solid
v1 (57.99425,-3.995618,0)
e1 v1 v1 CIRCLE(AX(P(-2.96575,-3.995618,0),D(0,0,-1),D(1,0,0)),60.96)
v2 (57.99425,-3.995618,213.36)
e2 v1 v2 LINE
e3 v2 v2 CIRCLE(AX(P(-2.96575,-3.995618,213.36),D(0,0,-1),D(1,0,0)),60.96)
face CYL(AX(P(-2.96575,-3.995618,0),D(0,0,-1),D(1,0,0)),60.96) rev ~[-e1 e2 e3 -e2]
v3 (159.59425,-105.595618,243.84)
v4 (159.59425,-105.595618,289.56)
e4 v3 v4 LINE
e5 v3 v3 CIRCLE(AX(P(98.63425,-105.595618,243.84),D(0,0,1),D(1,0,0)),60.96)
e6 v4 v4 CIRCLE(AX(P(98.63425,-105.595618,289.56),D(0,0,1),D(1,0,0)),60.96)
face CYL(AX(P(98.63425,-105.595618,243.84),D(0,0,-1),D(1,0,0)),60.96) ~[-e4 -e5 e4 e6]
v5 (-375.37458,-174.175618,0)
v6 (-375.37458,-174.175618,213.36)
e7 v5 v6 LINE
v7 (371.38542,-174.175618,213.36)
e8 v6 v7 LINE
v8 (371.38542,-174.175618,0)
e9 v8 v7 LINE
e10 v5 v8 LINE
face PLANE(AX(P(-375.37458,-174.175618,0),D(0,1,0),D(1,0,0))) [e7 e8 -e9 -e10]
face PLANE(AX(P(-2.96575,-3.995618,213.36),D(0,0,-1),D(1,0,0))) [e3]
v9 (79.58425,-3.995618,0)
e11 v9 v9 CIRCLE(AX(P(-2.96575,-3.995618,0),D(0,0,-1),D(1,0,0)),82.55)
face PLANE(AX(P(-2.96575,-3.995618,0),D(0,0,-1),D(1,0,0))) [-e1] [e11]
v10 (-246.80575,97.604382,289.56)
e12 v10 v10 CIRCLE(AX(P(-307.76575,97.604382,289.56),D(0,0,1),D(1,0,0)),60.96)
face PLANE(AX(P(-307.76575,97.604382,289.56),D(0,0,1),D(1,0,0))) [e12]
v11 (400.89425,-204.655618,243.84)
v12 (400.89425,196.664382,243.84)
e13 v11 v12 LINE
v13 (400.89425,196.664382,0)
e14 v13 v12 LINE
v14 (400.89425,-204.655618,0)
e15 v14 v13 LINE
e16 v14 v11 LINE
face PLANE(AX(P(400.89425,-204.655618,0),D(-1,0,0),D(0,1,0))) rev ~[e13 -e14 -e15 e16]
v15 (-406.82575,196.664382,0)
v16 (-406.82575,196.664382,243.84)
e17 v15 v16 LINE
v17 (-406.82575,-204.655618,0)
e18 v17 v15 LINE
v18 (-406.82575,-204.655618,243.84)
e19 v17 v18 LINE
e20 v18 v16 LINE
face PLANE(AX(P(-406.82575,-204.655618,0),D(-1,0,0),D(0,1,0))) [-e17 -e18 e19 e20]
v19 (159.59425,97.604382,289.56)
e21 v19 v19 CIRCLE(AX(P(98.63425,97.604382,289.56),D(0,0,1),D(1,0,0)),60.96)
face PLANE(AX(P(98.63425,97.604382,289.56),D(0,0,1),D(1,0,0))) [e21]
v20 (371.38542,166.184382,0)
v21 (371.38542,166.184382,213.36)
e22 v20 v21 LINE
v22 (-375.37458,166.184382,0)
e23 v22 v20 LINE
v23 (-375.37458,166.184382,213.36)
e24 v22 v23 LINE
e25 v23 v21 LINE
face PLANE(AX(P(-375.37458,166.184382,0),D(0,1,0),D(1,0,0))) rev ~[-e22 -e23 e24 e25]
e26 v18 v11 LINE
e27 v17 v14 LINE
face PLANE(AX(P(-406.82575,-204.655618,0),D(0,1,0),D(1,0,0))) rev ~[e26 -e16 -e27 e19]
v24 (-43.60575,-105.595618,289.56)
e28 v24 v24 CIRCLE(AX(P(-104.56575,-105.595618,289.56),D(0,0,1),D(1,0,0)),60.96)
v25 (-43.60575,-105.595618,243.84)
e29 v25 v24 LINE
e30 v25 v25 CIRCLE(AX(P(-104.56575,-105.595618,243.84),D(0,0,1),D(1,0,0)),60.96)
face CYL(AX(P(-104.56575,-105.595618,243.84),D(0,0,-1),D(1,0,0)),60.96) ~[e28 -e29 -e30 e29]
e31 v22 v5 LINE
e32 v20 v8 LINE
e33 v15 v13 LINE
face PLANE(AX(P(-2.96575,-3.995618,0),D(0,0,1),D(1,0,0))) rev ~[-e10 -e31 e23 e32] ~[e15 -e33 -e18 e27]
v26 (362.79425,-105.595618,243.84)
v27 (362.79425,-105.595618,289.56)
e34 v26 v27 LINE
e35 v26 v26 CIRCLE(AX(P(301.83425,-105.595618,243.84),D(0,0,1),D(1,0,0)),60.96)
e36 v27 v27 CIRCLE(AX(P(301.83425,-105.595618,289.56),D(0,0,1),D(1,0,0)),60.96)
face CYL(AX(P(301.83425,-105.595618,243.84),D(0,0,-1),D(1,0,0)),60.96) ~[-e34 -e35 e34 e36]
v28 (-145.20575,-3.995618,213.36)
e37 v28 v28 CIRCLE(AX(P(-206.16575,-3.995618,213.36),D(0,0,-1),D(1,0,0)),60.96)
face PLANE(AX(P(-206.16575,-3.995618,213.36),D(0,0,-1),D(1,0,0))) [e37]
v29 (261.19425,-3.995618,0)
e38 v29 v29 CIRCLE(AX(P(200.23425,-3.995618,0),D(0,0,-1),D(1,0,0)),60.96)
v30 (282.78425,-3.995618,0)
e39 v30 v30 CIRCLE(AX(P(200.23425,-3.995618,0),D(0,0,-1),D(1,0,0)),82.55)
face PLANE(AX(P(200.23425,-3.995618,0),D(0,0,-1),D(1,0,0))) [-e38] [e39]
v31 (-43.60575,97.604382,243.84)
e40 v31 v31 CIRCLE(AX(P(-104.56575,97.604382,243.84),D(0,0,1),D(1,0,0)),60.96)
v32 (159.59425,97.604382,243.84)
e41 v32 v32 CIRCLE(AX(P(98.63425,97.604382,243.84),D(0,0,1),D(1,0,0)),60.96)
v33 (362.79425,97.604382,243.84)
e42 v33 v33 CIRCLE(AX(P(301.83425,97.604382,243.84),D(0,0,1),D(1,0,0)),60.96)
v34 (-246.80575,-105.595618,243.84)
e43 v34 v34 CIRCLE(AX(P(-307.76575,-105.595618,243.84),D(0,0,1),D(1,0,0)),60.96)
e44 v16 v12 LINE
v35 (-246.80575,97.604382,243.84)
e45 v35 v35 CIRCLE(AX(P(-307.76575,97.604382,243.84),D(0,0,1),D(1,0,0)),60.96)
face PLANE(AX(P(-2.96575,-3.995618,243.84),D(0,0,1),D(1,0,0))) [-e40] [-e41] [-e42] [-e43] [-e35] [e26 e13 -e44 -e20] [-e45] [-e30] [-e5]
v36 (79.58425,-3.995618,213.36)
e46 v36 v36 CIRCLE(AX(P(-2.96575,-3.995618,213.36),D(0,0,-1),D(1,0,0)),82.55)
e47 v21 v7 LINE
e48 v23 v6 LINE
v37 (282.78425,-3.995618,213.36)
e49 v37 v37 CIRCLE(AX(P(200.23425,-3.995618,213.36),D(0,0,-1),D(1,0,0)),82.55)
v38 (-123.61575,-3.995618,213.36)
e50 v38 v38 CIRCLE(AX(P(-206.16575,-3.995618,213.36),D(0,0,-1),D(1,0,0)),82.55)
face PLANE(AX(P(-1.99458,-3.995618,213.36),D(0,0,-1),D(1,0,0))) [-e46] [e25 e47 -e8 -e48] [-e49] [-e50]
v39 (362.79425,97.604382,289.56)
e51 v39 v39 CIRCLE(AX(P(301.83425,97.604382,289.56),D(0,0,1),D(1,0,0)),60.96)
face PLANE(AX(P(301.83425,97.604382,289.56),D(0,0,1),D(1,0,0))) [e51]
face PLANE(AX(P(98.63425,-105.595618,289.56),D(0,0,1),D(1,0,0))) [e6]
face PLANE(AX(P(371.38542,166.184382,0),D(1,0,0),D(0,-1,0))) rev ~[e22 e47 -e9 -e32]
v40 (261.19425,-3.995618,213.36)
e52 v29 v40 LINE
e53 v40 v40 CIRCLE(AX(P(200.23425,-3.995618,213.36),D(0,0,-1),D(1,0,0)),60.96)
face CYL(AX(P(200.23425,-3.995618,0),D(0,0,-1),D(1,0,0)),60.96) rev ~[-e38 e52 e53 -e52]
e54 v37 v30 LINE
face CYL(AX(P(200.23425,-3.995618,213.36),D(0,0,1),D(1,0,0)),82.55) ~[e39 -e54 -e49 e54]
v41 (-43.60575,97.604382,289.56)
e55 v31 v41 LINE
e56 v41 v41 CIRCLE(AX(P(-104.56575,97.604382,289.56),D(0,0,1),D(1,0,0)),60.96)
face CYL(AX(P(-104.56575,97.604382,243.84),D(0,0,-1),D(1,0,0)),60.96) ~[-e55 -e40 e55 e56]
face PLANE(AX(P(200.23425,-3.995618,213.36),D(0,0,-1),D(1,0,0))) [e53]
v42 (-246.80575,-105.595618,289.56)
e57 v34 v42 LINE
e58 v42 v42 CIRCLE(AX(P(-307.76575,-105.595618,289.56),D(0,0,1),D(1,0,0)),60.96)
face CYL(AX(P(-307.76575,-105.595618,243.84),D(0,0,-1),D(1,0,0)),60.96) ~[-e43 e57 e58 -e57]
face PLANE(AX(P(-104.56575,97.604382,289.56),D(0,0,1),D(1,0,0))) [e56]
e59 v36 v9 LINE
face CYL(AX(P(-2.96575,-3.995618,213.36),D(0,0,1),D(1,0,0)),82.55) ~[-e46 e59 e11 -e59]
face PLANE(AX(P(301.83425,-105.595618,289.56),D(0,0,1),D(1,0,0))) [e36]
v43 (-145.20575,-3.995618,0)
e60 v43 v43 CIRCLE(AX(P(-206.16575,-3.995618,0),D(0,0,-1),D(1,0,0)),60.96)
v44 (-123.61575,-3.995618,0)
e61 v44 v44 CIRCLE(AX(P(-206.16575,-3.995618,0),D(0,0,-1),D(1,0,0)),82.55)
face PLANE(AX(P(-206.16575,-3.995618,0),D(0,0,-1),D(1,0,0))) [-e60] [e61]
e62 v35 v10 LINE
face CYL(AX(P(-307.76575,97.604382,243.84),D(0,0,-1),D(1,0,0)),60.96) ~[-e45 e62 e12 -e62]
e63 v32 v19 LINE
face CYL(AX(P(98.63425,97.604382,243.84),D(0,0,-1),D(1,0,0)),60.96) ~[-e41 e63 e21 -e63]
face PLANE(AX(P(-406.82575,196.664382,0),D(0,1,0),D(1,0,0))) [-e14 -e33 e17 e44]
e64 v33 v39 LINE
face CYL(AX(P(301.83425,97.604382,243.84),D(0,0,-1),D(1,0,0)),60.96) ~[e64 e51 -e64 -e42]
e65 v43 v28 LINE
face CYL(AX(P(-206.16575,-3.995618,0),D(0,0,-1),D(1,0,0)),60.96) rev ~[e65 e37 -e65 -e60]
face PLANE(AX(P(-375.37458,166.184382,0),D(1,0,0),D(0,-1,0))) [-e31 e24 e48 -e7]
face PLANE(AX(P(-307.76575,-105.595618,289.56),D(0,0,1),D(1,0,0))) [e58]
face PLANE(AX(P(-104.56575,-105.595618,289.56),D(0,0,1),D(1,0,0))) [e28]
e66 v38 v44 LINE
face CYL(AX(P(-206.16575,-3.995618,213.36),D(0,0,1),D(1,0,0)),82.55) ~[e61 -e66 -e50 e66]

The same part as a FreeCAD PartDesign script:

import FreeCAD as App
import Part
import Sketcher
Q = App.Units.Quantity


def add_polygon(sketch, points):
    """Adds a closed chain of lines whose ends are joined by coincident constraints."""
    first, n = sketch.GeometryCount, len(points)
    for a, b in zip(points, points[1:] + points[:1]):
        sketch.addGeometry(Part.LineSegment(App.Vector(*a, 0), App.Vector(*b, 0)), False)
    for i in range(n):
        sketch.addConstraint(Sketcher.Constraint("Coincident", first + i, 2, first + (i + 1) % n, 1))

doc = App.newDocument("Part")
params = doc.addObject("Spreadsheet::Sheet", "Params")
for row, (alias, value) in enumerate([
    ("sketch1_width", "31.8 in"),
    ("sketch1_height", "15.8 in"),
    ("pad1_length", "9.6 in"),
    ("sketch2_diameter", "4.8 in"),
    ("pad2_length", "1.8 in"),
    ("sketch3_width", "29.4 in"),
    ("sketch3_height", "13.4 in"),
    ("pocket1_length", "8.4 in"),
    ("sketch4_diameter", "6.5 in"),
    ("pad3_length", "8.4 in"),
    ("sketch5_diameter", "4.8 in"),
    ("pocket2_length", "8.4 in"),
], start=1):
    params.set(f"A{row}", alias)
    params.set(f"B{row}", "=" + value)
    params.setAlias(f"B{row}", alias)

body = doc.addObject("PartDesign::Body", "Body")

# Sketch on XY plane
sketch1 = body.newObject("Sketcher::SketchObject", "Sketch")
sketch1.AttachmentSupport = (doc.getObject("XY_Plane"), [""])
sketch1.MapMode = "FlatFace"
add_polygon(sketch1, [(-407, 197), (-407, -205), (401, -205), (401, 197)])  # lines 0-3
sketch1.addConstraint([
    Sketcher.Constraint("Vertical", 0),
    Sketcher.Constraint("Horizontal", 1),
    Sketcher.Constraint("Vertical", 2),
    Sketcher.Constraint("Horizontal", 3),
    Sketcher.Constraint("DistanceX", 1, 1, 1, 2, Q("31.8 in")),
    Sketcher.Constraint("DistanceY", 0, 2, 0, 1, Q("15.8 in")),
    Sketcher.Constraint("DistanceX", 0, 2, -1, 1, 406.82575),
    Sketcher.Constraint("DistanceY", 0, 2, -1, 1, 204.655618),
])
sketch1.setExpression("Constraints[8]", "Params.sketch1_width")
sketch1.setExpression("Constraints[9]", "Params.sketch1_height")
pad1 = body.newObject("PartDesign::Pad", "Pad")
pad1.Profile = sketch1
pad1.setExpression("Length", "Params.pad1_length")

# Sketch on XY plane
sketch2 = body.newObject("Sketcher::SketchObject", "Sketch001")
sketch2.AttachmentSupport = (doc.getObject("XY_Plane"), [""])
sketch2.MapMode = "FlatFace"
sketch2.AttachmentOffset = App.Placement(App.Vector(0, 0, 9.6 * 25.4), App.Rotation())
sketch2.addGeometry([
    Part.Circle(App.Vector(-308, 98, 0), App.Vector(0, 0, 1), 61),  # 0
    Part.Circle(App.Vector(-308, -106, 0), App.Vector(0, 0, 1), 61),  # 1
    Part.Circle(App.Vector(-105, -106, 0), App.Vector(0, 0, 1), 61),  # 2
    Part.Circle(App.Vector(-105, 98, 0), App.Vector(0, 0, 1), 61),  # 3
    Part.Circle(App.Vector(99, 98, 0), App.Vector(0, 0, 1), 61),  # 4
    Part.Circle(App.Vector(99, -106, 0), App.Vector(0, 0, 1), 61),  # 5
    Part.Circle(App.Vector(302, -106, 0), App.Vector(0, 0, 1), 61),  # 6
    Part.Circle(App.Vector(302, 98, 0), App.Vector(0, 0, 1), 61),  # 7
], False)
sketch2.addConstraint([
    Sketcher.Constraint("Equal", 0, 1),
    Sketcher.Constraint("Equal", 1, 2),
    Sketcher.Constraint("Equal", 2, 3),
    Sketcher.Constraint("Equal", 3, 4),
    Sketcher.Constraint("Equal", 4, 5),
    Sketcher.Constraint("Equal", 5, 6),
    Sketcher.Constraint("Equal", 6, 7),
    Sketcher.Constraint("Horizontal", 1, 3, 2, 3),
    Sketcher.Constraint("Horizontal", 0, 3, 3, 3),
    Sketcher.Constraint("Horizontal", 3, 3, 4, 3),
    Sketcher.Constraint("Horizontal", 2, 3, 5, 3),
    Sketcher.Constraint("Horizontal", 5, 3, 6, 3),
    Sketcher.Constraint("Horizontal", 4, 3, 7, 3),
    Sketcher.Constraint("Vertical", 0, 3, 1, 3),
    Sketcher.Constraint("Vertical", 2, 3, 3, 3),
    Sketcher.Constraint("Vertical", 4, 3, 5, 3),
    Sketcher.Constraint("Vertical", 6, 3, 7, 3),
    Sketcher.Constraint("Diameter", 0, Q("4.8 in")),
    Sketcher.Constraint("DistanceY", 1, 3, 0, 3, Q("8 in")),
    Sketcher.Constraint("DistanceX", 1, 3, 2, 3, Q("8 in")),
    Sketcher.Constraint("DistanceX", 3, 3, 4, 3, Q("8 in")),
    Sketcher.Constraint("DistanceX", 5, 3, 6, 3, Q("8 in")),
    Sketcher.Constraint("DistanceX", 0, 3, -1, 1, 307.76575),
    Sketcher.Constraint("DistanceY", -1, 1, 0, 3, 97.604382),
])
sketch2.setExpression("Constraints[17]", "Params.sketch2_diameter")
pad2 = body.newObject("PartDesign::Pad", "Pad001")
pad2.Profile = sketch2
pad2.setExpression("Length", "Params.pad2_length")

# Sketch on XY plane
sketch3 = body.newObject("Sketcher::SketchObject", "Sketch002")
sketch3.AttachmentSupport = (doc.getObject("XY_Plane"), [""])
sketch3.MapMode = "FlatFace"
add_polygon(sketch3, [(-375, -174), (-375, 166), (371, 166), (371, -174)])  # lines 0-3
sketch3.addConstraint([
    Sketcher.Constraint("Vertical", 0),
    Sketcher.Constraint("Horizontal", 1),
    Sketcher.Constraint("Vertical", 2),
    Sketcher.Constraint("Horizontal", 3),
    Sketcher.Constraint("DistanceX", 1, 1, 1, 2, Q("29.4 in")),
    Sketcher.Constraint("DistanceY", 0, 1, 0, 2, Q("13.4 in")),
    Sketcher.Constraint("DistanceX", 0, 2, -1, 1, 375.37458),
    Sketcher.Constraint("DistanceY", -1, 1, 0, 2, 166.184382),
])
sketch3.setExpression("Constraints[8]", "Params.sketch3_width")
sketch3.setExpression("Constraints[9]", "Params.sketch3_height")
pocket1 = body.newObject("PartDesign::Pocket", "Pocket")
pocket1.Profile = sketch3
pocket1.setExpression("Length", "Params.pocket1_length")
pocket1.Reversed = True

# Sketch on XY plane
sketch4 = body.newObject("Sketcher::SketchObject", "Sketch003")
sketch4.AttachmentSupport = (doc.getObject("XY_Plane"), [""])
sketch4.MapMode = "FlatFace"
sketch4.AttachmentOffset = App.Placement(App.Vector(0, 0, 8.4 * 25.4), App.Rotation())
sketch4.addGeometry([
    Part.Circle(App.Vector(-206, -4, 0), App.Vector(0, 0, 1), 83),
    Part.Circle(App.Vector(-3, -4, 0), App.Vector(0, 0, 1), 83),
    Part.Circle(App.Vector(200, -4, 0), App.Vector(0, 0, 1), 83),
], False)
sketch4.addConstraint([
    Sketcher.Constraint("Equal", 0, 1),
    Sketcher.Constraint("Equal", 1, 2),
    Sketcher.Constraint("Horizontal", 0, 3, 1, 3),
    Sketcher.Constraint("Horizontal", 1, 3, 2, 3),
    Sketcher.Constraint("Diameter", 0, Q("6.5 in")),
    Sketcher.Constraint("DistanceX", 0, 3, 1, 3, Q("8 in")),
    Sketcher.Constraint("DistanceX", 1, 3, 2, 3, Q("8 in")),
    Sketcher.Constraint("DistanceX", 0, 3, -1, 1, 206.16575),
    Sketcher.Constraint("DistanceY", 0, 3, -1, 1, 3.995618),
])
sketch4.setExpression("Constraints[4]", "Params.sketch4_diameter")
pad3 = body.newObject("PartDesign::Pad", "Pad002")
pad3.Profile = sketch4
pad3.setExpression("Length", "Params.pad3_length")
pad3.Reversed = True

# Sketch on XY plane
sketch5 = body.newObject("Sketcher::SketchObject", "Sketch004")
sketch5.AttachmentSupport = (doc.getObject("XY_Plane"), [""])
sketch5.MapMode = "FlatFace"
sketch5.addGeometry([
    Part.Circle(App.Vector(-206, -4, 0), App.Vector(0, 0, 1), 61),
    Part.Circle(App.Vector(-3, -4, 0), App.Vector(0, 0, 1), 61),
    Part.Circle(App.Vector(200, -4, 0), App.Vector(0, 0, 1), 61),
], False)
sketch5.addConstraint([
    Sketcher.Constraint("Equal", 0, 1),
    Sketcher.Constraint("Equal", 1, 2),
    Sketcher.Constraint("Horizontal", 0, 3, 1, 3),
    Sketcher.Constraint("Horizontal", 1, 3, 2, 3),
    Sketcher.Constraint("Diameter", 0, Q("4.8 in")),
    Sketcher.Constraint("DistanceX", 0, 3, 1, 3, Q("8 in")),
    Sketcher.Constraint("DistanceX", 1, 3, 2, 3, Q("8 in")),
    Sketcher.Constraint("DistanceX", 0, 3, -1, 1, 206.16575),
    Sketcher.Constraint("DistanceY", 0, 3, -1, 1, 3.995618),
])
sketch5.setExpression("Constraints[4]", "Params.sketch5_diameter")
pocket2 = body.newObject("PartDesign::Pocket", "Pocket001")
pocket2.Profile = sketch5
pocket2.setExpression("Length", "Params.pocket2_length")
pocket2.Reversed = True

doc.recompute()
